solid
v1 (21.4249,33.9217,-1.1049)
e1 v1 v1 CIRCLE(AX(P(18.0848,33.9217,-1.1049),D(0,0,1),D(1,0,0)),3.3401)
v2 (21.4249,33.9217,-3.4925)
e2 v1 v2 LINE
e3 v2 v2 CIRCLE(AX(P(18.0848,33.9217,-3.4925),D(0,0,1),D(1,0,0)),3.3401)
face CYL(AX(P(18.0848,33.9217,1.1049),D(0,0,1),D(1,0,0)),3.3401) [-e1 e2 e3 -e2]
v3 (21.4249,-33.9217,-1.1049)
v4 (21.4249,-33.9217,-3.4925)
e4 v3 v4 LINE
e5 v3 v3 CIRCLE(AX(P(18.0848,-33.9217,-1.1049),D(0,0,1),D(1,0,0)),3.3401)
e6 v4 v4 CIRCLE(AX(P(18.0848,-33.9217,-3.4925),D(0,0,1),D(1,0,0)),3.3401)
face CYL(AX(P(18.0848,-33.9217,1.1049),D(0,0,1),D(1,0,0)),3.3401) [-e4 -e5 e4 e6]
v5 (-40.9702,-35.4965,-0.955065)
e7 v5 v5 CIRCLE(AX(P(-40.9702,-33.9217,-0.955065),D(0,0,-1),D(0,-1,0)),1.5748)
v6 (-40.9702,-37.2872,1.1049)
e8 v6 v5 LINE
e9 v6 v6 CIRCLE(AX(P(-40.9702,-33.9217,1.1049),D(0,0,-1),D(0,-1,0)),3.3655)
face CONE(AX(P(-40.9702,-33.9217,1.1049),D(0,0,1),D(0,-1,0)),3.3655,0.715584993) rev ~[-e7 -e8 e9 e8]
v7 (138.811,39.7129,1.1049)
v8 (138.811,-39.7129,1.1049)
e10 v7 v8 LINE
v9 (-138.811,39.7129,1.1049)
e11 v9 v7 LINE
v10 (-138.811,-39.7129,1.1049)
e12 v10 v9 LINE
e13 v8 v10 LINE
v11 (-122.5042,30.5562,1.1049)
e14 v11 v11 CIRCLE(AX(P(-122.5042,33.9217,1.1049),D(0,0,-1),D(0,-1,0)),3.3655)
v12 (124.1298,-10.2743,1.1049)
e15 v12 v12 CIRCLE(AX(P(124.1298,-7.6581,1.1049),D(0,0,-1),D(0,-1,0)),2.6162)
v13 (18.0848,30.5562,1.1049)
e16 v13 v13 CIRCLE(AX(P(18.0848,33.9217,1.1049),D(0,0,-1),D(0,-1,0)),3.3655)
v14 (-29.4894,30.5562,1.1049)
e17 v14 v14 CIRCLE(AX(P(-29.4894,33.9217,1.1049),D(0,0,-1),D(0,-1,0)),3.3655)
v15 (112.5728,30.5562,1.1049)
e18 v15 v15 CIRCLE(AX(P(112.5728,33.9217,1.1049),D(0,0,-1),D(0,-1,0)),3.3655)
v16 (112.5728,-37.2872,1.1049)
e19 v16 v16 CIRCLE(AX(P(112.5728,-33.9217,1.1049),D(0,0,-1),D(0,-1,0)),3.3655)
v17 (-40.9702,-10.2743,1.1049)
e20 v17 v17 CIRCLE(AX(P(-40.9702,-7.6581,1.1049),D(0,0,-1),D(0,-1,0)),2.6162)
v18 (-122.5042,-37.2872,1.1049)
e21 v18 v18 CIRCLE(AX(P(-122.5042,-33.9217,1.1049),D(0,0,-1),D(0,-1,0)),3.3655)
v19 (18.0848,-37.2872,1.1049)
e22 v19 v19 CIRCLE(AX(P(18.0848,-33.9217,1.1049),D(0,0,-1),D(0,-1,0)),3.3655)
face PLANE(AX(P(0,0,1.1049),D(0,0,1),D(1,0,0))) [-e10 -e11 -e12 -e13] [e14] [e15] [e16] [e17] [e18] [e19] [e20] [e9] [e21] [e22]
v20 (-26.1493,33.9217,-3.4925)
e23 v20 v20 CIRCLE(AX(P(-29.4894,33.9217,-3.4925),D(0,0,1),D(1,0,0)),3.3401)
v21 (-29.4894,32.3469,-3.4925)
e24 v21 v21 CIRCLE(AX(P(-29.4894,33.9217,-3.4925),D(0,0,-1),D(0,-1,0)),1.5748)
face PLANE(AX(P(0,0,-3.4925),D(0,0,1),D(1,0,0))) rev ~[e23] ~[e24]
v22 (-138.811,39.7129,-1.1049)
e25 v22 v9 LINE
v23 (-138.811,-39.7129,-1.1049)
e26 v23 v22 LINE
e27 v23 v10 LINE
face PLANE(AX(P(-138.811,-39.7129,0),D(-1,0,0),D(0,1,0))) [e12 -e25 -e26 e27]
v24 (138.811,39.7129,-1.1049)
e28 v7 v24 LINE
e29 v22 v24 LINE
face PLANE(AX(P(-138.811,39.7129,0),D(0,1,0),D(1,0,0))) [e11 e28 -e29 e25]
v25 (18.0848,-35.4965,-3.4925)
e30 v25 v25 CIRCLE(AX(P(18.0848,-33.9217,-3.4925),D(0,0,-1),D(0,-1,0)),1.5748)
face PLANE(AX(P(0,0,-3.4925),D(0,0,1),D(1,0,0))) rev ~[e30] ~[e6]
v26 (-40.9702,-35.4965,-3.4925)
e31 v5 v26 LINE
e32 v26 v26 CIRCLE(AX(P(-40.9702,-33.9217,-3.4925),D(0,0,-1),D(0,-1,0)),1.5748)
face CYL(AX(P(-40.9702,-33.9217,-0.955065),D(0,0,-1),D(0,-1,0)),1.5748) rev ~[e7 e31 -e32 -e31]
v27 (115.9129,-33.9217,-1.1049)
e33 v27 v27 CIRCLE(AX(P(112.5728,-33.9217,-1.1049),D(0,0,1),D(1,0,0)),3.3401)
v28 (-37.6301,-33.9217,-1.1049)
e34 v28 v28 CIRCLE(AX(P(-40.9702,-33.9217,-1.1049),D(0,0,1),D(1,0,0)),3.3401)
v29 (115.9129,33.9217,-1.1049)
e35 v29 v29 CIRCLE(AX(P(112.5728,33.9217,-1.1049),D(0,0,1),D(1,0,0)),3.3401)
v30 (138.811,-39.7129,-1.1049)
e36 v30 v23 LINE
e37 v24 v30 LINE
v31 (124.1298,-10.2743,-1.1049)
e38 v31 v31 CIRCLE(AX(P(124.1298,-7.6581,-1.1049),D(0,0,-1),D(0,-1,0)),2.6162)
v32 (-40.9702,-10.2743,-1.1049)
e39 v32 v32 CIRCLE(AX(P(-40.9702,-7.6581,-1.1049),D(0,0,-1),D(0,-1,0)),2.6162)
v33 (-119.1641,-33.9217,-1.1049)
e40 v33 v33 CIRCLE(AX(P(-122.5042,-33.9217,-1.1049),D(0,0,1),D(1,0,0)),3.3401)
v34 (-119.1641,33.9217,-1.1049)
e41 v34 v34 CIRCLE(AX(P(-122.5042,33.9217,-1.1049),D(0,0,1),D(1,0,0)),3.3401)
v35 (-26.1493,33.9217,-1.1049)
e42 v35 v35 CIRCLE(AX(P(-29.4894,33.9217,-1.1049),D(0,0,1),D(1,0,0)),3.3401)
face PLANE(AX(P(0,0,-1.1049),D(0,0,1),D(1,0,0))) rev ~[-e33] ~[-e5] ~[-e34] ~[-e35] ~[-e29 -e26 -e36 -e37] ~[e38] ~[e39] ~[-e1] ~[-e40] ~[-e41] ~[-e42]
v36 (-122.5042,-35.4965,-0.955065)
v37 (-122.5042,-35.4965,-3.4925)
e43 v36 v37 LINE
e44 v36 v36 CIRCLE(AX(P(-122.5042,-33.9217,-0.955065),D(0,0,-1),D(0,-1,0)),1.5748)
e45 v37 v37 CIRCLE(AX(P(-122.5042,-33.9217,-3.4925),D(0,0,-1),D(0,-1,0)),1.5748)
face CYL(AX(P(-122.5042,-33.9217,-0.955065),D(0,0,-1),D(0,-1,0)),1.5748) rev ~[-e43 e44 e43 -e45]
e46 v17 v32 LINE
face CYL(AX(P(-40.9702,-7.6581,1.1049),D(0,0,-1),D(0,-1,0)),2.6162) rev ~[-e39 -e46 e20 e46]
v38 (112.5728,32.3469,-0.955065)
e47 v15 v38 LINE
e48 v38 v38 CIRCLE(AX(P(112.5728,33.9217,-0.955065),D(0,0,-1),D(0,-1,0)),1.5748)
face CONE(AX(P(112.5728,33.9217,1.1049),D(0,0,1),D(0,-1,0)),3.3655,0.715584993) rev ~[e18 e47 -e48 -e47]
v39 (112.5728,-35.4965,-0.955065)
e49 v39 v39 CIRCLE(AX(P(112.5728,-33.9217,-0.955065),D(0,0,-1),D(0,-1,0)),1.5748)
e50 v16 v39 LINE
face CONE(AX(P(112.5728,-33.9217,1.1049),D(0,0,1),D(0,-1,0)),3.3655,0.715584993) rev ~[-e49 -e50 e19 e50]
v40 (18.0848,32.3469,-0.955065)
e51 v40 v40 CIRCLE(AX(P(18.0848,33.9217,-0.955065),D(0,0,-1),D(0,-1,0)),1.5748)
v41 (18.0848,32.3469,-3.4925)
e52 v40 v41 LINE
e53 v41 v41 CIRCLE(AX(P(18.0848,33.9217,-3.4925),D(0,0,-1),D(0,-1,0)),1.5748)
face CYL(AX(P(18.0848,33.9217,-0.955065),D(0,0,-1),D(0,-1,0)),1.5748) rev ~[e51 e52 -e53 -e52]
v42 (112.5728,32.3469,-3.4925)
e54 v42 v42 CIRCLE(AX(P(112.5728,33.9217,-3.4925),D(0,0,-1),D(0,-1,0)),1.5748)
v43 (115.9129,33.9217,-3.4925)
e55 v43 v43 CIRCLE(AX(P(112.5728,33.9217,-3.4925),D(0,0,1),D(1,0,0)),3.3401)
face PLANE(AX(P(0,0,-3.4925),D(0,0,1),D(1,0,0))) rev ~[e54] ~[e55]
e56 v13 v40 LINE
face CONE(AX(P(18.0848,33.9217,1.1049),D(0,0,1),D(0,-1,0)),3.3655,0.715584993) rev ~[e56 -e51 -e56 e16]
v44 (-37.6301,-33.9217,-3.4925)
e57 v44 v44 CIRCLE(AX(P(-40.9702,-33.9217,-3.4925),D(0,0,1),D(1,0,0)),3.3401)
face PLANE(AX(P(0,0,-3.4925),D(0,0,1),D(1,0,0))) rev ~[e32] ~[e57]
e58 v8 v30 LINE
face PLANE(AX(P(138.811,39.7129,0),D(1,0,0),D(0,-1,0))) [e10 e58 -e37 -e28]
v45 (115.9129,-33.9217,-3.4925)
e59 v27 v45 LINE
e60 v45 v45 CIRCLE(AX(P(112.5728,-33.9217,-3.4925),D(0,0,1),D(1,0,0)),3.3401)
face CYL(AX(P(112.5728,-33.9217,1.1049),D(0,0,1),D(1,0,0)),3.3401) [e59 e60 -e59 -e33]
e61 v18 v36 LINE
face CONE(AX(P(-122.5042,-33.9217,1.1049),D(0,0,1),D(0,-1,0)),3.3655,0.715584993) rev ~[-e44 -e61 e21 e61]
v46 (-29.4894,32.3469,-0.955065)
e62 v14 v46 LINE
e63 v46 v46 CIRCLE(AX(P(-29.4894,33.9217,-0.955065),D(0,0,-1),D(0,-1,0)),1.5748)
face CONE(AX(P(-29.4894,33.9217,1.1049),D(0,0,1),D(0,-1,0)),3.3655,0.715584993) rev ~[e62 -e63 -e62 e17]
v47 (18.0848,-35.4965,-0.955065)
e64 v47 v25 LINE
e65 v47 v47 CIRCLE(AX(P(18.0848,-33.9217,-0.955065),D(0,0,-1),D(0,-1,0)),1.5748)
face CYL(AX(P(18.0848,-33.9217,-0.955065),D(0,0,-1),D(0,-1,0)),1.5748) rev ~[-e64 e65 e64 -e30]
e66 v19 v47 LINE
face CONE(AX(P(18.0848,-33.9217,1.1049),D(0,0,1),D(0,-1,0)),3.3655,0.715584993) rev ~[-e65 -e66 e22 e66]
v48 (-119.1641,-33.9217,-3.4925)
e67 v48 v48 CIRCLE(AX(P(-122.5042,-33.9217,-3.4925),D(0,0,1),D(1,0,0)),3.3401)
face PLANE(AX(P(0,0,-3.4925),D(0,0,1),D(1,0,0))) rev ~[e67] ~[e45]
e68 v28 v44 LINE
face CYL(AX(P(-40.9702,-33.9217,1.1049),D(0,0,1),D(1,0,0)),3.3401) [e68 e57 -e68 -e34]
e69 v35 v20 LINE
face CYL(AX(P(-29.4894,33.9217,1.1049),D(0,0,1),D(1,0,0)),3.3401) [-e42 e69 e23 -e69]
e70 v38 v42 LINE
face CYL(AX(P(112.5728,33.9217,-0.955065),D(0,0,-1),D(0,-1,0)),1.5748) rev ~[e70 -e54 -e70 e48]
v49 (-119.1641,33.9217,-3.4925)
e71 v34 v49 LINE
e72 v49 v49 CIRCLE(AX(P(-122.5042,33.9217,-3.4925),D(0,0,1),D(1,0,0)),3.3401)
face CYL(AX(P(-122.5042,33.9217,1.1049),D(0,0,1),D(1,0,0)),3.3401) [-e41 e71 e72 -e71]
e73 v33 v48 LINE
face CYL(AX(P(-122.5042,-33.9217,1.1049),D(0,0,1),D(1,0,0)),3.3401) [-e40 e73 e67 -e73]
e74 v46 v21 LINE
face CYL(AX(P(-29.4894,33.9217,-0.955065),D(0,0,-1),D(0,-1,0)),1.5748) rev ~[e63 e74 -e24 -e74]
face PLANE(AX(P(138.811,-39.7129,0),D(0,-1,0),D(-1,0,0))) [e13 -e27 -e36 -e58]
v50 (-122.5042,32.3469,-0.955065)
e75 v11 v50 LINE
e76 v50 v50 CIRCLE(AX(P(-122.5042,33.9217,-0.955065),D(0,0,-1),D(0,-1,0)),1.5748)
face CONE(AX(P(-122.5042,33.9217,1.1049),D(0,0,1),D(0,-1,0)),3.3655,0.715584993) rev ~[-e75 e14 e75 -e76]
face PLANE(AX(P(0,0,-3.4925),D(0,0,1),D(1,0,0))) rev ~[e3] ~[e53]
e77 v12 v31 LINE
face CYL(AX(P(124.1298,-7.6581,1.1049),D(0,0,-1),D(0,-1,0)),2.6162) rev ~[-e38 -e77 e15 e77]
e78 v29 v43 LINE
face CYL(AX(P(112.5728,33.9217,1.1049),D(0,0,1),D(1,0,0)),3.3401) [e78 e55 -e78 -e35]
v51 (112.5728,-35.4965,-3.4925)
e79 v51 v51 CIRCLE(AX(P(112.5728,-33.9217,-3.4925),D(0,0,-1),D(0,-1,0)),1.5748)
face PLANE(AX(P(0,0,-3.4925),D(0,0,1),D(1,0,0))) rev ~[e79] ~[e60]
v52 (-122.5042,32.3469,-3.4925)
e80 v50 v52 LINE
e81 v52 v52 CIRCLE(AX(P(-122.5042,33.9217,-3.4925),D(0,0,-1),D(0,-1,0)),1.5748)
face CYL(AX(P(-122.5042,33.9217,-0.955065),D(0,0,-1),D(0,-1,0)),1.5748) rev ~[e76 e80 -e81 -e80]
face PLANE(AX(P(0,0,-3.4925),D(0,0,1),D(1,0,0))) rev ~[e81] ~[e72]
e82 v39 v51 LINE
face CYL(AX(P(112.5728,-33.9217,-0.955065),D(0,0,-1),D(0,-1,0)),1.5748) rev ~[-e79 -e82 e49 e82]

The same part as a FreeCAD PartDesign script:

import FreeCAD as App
import Part
import Sketcher
from FreeCAD import Vector
Q = App.Units.Quantity

doc = App.newDocument("Part")
body = doc.addObject("PartDesign::Body", "Body")

# Sketch on XY plane
sketch1 = body.newObject("Sketcher::SketchObject", "Sketch")
sketch1.AttachmentSupport = (doc.getObject("XY_Plane"), [""])
sketch1.MapMode = "FlatFace"
sketch1.addGeometry(Part.LineSegment(Vector(138.811, 39.7129, 0), Vector(-138.811, 39.7129, 0)), False)
sketch1.addGeometry(Part.LineSegment(Vector(-138.811, 39.7129, 0), Vector(-138.811, -39.7129, 0)), False)
sketch1.addGeometry(Part.LineSegment(Vector(-138.811, -39.7129, 0), Vector(138.811, -39.7129, 0)), False)
sketch1.addGeometry(Part.LineSegment(Vector(138.811, -39.7129, 0), Vector(138.811, 39.7129, 0)), False)
sketch1.addConstraint(Sketcher.Constraint("Coincident", 0, 2, 1, 1))
sketch1.addConstraint(Sketcher.Constraint("Coincident", 1, 2, 2, 1))
sketch1.addConstraint(Sketcher.Constraint("Coincident", 2, 2, 3, 1))
sketch1.addConstraint(Sketcher.Constraint("Coincident", 3, 2, 0, 1))
sketch1.addConstraint(Sketcher.Constraint("Horizontal", 0))
sketch1.addConstraint(Sketcher.Constraint("Vertical", 1))
sketch1.addConstraint(Sketcher.Constraint("Horizontal", 2))
sketch1.addConstraint(Sketcher.Constraint("Vertical", 3))
sketch1.addConstraint(Sketcher.Constraint("Symmetric", 0, 2, 2, 2, -1, 1))
sketch1.addConstraint(Sketcher.Constraint("DistanceX", 0, 2, 0, 1, Q("10.93 in")))
sketch1.addConstraint(Sketcher.Constraint("DistanceY", 1, 2, 1, 1, Q("3.127 in")))
pad1 = body.newObject("PartDesign::Pad", "Pad")
pad1.Profile = sketch1
pad1.Length = Q("0.087 in")
pad1.Midplane = True

# Sketch on XY plane
sketch2 = body.newObject("Sketcher::SketchObject", "Sketch001")
sketch2.AttachmentSupport = (doc.getObject("XY_Plane"), [""])
sketch2.MapMode = "FlatFace"
sketch2.AttachmentOffset = App.Placement(Vector(0, 0, 0.0435 * 25.4), App.Rotation())
sketch2.addGeometry(Part.Circle(Vector(-122.5042, 33.9217, 0), Vector(0, 0, 1), 3.3401), False)
sketch2.addGeometry(Part.Circle(Vector(-29.4894, 33.9217, 0), Vector(0, 0, 1), 3.3401), False)
sketch2.addGeometry(Part.Circle(Vector(18.0848, 33.9217, 0), Vector(0, 0, 1), 3.3401), False)
sketch2.addGeometry(Part.Circle(Vector(112.5728, 33.9217, 0), Vector(0, 0, 1), 3.3401), False)
sketch2.addGeometry(Part.Circle(Vector(-122.5042, -33.9217, 0), Vector(0, 0, 1), 3.3401), False)
sketch2.addGeometry(Part.Circle(Vector(-40.9702, -33.9217, 0), Vector(0, 0, 1), 3.3401), False)
sketch2.addGeometry(Part.Circle(Vector(18.0848, -33.9217, 0), Vector(0, 0, 1), 3.3401), False)
sketch2.addGeometry(Part.Circle(Vector(112.5728, -33.9217, 0), Vector(0, 0, 1), 3.3401), False)
sketch2.addConstraint(Sketcher.Constraint("Equal", 0, 1))
sketch2.addConstraint(Sketcher.Constraint("Equal", 1, 2))
sketch2.addConstraint(Sketcher.Constraint("Equal", 2, 3))
sketch2.addConstraint(Sketcher.Constraint("Equal", 3, 4))
sketch2.addConstraint(Sketcher.Constraint("Equal", 4, 5))
sketch2.addConstraint(Sketcher.Constraint("Equal", 5, 6))
sketch2.addConstraint(Sketcher.Constraint("Equal", 6, 7))
sketch2.addConstraint(Sketcher.Constraint("Symmetric", 0, 3, 4, 3, -1))
sketch2.addConstraint(Sketcher.Constraint("Symmetric", 2, 3, 6, 3, -1))
sketch2.addConstraint(Sketcher.Constraint("Symmetric", 3, 3, 7, 3, -1))
sketch2.addConstraint(Sketcher.Constraint("Horizontal", 0, 3, 1, 3))
sketch2.addConstraint(Sketcher.Constraint("Horizontal", 1, 3, 2, 3))
sketch2.addConstraint(Sketcher.Constraint("Horizontal", 2, 3, 3, 3))
sketch2.addConstraint(Sketcher.Constraint("Horizontal", 4, 3, 5, 3))
sketch2.addConstraint(Sketcher.Constraint("Diameter", 0, Q("0.263 in")))
sketch2.addConstraint(Sketcher.Constraint("DistanceX", 2, 3, 3, 3, Q("3.72 in")))
sketch2.addConstraint(Sketcher.Constraint("DistanceX", 4, 3, 5, 3, Q("3.21 in")))
sketch2.addConstraint(Sketcher.Constraint("DistanceX", 0, 3, -1, 1, Q("4.823 in")))
sketch2.addConstraint(Sketcher.Constraint("DistanceX", 1, 3, -1, 1, Q("1.161 in")))
sketch2.addConstraint(Sketcher.Constraint("DistanceX", -1, 1, 2, 3, Q("0.712 in")))
sketch2.addConstraint(Sketcher.Constraint("DistanceY", 4, 3, 0, 3, Q("2.671 in")))
pad2 = body.newObject("PartDesign::Pad", "Pad001")
pad2.Profile = sketch2
pad2.Length = Q("0.181 in")
pad2.Reversed = True

# Sketch on XY plane
sketch3 = body.newObject("Sketcher::SketchObject", "Sketch002")
sketch3.AttachmentSupport = (doc.getObject("XY_Plane"), [""])
sketch3.MapMode = "FlatFace"
sketch3.AttachmentOffset = App.Placement(Vector(0, 0, 0.0435 * 25.4), App.Rotation())
sketch3.addGeometry(Part.Circle(Vector(-122.5042, 33.9217, 0), Vector(0, 0, 1), 1.5748), False)
sketch3.addGeometry(Part.Circle(Vector(-29.4894, 33.9217, 0), Vector(0, 0, 1), 1.5748), False)
sketch3.addGeometry(Part.Circle(Vector(18.0848, 33.9217, 0), Vector(0, 0, 1), 1.5748), False)
sketch3.addGeometry(Part.Circle(Vector(112.5728, 33.9217, 0), Vector(0, 0, 1), 1.5748), False)
sketch3.addGeometry(Part.Circle(Vector(112.5728, -33.9217, 0), Vector(0, 0, 1), 1.5748), False)
sketch3.addGeometry(Part.Circle(Vector(18.0848, -33.9217, 0), Vector(0, 0, 1), 1.5748), False)
sketch3.addGeometry(Part.Circle(Vector(-40.9702, -33.9217, 0), Vector(0, 0, 1), 1.5748), False)
sketch3.addGeometry(Part.Circle(Vector(-122.5042, -33.9217, 0), Vector(0, 0, 1), 1.5748), False)
sketch3.addConstraint(Sketcher.Constraint("Equal", 0, 1))
sketch3.addConstraint(Sketcher.Constraint("Equal", 1, 2))
sketch3.addConstraint(Sketcher.Constraint("Equal", 2, 3))
sketch3.addConstraint(Sketcher.Constraint("Equal", 3, 4))
sketch3.addConstraint(Sketcher.Constraint("Equal", 4, 5))
sketch3.addConstraint(Sketcher.Constraint("Equal", 5, 6))
sketch3.addConstraint(Sketcher.Constraint("Equal", 6, 7))
sketch3.addConstraint(Sketcher.Constraint("Symmetric", 3, 3, 4, 3, -1))
sketch3.addConstraint(Sketcher.Constraint("Symmetric", 2, 3, 5, 3, -1))
sketch3.addConstraint(Sketcher.Constraint("Symmetric", 0, 3, 7, 3, -1))
sketch3.addConstraint(Sketcher.Constraint("Horizontal", 0, 3, 1, 3))
sketch3.addConstraint(Sketcher.Constraint("Horizontal", 1, 3, 2, 3))
sketch3.addConstraint(Sketcher.Constraint("Horizontal", 2, 3, 3, 3))
sketch3.addConstraint(Sketcher.Constraint("Horizontal", 5, 3, 6, 3))
sketch3.addConstraint(Sketcher.Constraint("Diameter", 0, Q("0.124 in")))
sketch3.addConstraint(Sketcher.Constraint("DistanceX", 2, 3, 3, 3, Q("3.72 in")))
sketch3.addConstraint(Sketcher.Constraint("DistanceX", 0, 3, 6, 3, Q("3.21 in")))
sketch3.addConstraint(Sketcher.Constraint("DistanceX", 0, 3, -1, 1, Q("4.823 in")))
sketch3.addConstraint(Sketcher.Constraint("DistanceX", 1, 3, -1, 1, Q("1.161 in")))
sketch3.addConstraint(Sketcher.Constraint("DistanceX", -1, 1, 2, 3, Q("0.712 in")))
sketch3.addConstraint(Sketcher.Constraint("DistanceY", 4, 3, 3, 3, Q("2.671 in")))
doc.recompute()
hole = body.newObject("PartDesign::Hole", "Hole")
hole.Profile = sketch3
hole.ThreadType = "None"
hole.Diameter = Q("0.124 in")
hole.DepthType = "ThroughAll"
hole.HoleCutType = "Countersink"
hole.HoleCutDiameter = Q("0.265 in")
hole.HoleCutCountersinkAngle = 82

# Sketch on XY plane
sketch4 = body.newObject("Sketcher::SketchObject", "Sketch003")
sketch4.AttachmentSupport = (doc.getObject("XY_Plane"), [""])
sketch4.MapMode = "FlatFace"
sketch4.AttachmentOffset = App.Placement(Vector(0, 0, 0.0435 * 25.4), App.Rotation())
sketch4.addGeometry(Part.Circle(Vector(-40.9702, -7.6581, 0), Vector(0, 0, 1), 2.6162), False)
sketch4.addGeometry(Part.Circle(Vector(124.1298, -7.6581, 0), Vector(0, 0, 1), 2.6162), False)
sketch4.addConstraint(Sketcher.Constraint("Equal", 0, 1))
sketch4.addConstraint(Sketcher.Constraint("Horizontal", 0, 3, 1, 3))
sketch4.addConstraint(Sketcher.Constraint("Diameter", 0, Q("0.206 in")))
sketch4.addConstraint(Sketcher.Constraint("DistanceX", 0, 3, 1, 3, Q("6.5 in")))
sketch4.addConstraint(Sketcher.Constraint("DistanceX", 0, 3, -1, 1, Q("1.613 in")))
sketch4.addConstraint(Sketcher.Constraint("DistanceY", 0, 3, -1, 1, Q("0.3015 in")))
doc.recompute()
hole2 = body.newObject("PartDesign::Hole", "Hole001")
hole2.Profile = sketch4
hole2.ThreadType = "None"
hole2.Diameter = Q("0.206 in")
hole2.DepthType = "ThroughAll"

doc.recompute()
